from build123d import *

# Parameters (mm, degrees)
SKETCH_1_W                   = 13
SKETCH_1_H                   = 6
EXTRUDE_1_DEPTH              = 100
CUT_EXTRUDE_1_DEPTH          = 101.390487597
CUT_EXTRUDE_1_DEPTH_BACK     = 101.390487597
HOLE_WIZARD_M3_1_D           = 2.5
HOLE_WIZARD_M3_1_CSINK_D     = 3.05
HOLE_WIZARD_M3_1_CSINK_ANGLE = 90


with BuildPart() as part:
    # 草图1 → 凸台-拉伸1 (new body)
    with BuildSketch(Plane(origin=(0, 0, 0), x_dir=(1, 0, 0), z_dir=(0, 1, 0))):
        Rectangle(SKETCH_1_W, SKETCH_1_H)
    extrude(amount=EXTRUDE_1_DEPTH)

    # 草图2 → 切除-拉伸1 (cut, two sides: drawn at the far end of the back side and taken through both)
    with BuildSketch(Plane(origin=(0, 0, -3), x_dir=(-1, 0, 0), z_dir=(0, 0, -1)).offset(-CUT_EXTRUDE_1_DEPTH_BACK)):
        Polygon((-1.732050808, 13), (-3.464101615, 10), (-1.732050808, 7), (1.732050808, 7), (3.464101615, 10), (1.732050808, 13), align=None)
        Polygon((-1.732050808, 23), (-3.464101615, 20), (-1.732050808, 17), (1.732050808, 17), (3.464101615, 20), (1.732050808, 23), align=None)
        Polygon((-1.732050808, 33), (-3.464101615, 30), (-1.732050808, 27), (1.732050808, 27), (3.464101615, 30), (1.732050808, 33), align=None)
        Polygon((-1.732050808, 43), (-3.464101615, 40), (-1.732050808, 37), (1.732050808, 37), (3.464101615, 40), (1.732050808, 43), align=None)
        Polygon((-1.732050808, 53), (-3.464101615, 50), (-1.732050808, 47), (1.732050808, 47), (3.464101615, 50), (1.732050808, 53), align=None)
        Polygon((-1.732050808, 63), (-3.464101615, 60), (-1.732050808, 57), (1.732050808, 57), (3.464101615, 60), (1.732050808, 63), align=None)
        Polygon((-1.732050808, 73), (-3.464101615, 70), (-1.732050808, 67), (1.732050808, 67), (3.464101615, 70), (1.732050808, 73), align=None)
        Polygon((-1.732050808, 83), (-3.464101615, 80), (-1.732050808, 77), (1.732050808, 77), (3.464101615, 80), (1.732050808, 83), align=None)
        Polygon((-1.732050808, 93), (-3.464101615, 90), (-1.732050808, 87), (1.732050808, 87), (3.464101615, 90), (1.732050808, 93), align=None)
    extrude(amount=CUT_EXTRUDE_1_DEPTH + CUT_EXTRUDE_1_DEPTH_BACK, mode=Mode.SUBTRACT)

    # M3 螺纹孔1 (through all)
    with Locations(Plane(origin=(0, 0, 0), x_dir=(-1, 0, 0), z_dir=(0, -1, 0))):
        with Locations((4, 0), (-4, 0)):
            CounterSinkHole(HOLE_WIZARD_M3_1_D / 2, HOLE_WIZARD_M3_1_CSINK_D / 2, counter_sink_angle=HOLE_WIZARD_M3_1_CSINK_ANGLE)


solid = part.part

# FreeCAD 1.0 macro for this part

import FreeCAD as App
import Part
import Sketcher
from FreeCAD import Vector
Q = App.Units.Quantity


def add_polygon(sketch, points):
    """Adds a closed chain of lines whose ends are joined by coincident constraints."""
    first, n = sketch.GeometryCount, len(points)
    for a, b in zip(points, points[1:] + points[:1]):
        sketch.addGeometry(Part.LineSegment(App.Vector(*a, 0), App.Vector(*b, 0)), False)
    for i in range(n):
        sketch.addConstraint(Sketcher.Constraint("Coincident", first + i, 2, first + (i + 1) % n, 1))

doc = App.newDocument("Part")
body = doc.addObject("PartDesign::Body", "Body")

# Sketch on XZ plane
sketch1 = body.newObject("Sketcher::SketchObject", "Sketch")
sketch1.AttachmentSupport = (doc.getObject("XZ_Plane"), [""])
sketch1.MapMode = "FlatFace"
add_polygon(sketch1, [(-6.5, -3), (-6.5, 3), (6.5, 3), (6.5, -3)])  # lines 0-3
sketch1.addConstraint([
    Sketcher.Constraint("Vertical", 0),
    Sketcher.Constraint("Horizontal", 1),
    Sketcher.Constraint("Vertical", 2),
    Sketcher.Constraint("Horizontal", 3),
    Sketcher.Constraint("Symmetric", 0, 2, 2, 2, -1, 1),
    Sketcher.Constraint("DistanceX", 1, 1, 1, 2, Q("13 mm")),
    Sketcher.Constraint("DistanceY", 0, 1, 0, 2, Q("6 mm")),
])
pad1 = body.newObject("PartDesign::Pad", "Pad")
pad1.Profile = sketch1
pad1.Length = 100
pad1.Reversed = True

# Sketch on XY plane
sketch2 = body.newObject("Sketcher::SketchObject", "Sketch001")
sketch2.AttachmentSupport = (doc.getObject("XY_Plane"), [""])
sketch2.MapMode = "FlatFace"
sketch2.AttachmentOffset = App.Placement(Vector(0, 0, -3), App.Rotation())
add_polygon(sketch2, [(1.732051, 13), (3.464102, 10), (1.732051, 7), (-1.732051, 7), (-3.464102, 10), (-1.732051, 13)])  # lines 0-5
add_polygon(sketch2, [(1.732051, 23), (3.464102, 20), (1.732051, 17), (-1.732051, 17), (-3.464102, 20), (-1.732051, 23)])  # lines 6-11
add_polygon(sketch2, [(1.732051, 33), (3.464102, 30), (1.732051, 27), (-1.732051, 27), (-3.464102, 30), (-1.732051, 33)])  # lines 12-17
add_polygon(sketch2, [(1.732051, 43), (3.464102, 40), (1.732051, 37), (-1.732051, 37), (-3.464102, 40), (-1.732051, 43)])  # lines 18-23
add_polygon(sketch2, [(1.732051, 53), (3.464102, 50), (1.732051, 47), (-1.732051, 47), (-3.464102, 50), (-1.732051, 53)])  # lines 24-29
add_polygon(sketch2, [(1.732051, 63), (3.464102, 60), (1.732051, 57), (-1.732051, 57), (-3.464102, 60), (-1.732051, 63)])  # lines 30-35
add_polygon(sketch2, [(1.732051, 73), (3.464102, 70), (1.732051, 67), (-1.732051, 67), (-3.464102, 70), (-1.732051, 73)])  # lines 36-41
add_polygon(sketch2, [(1.732051, 83), (3.464102, 80), (1.732051, 77), (-1.732051, 77), (-3.464102, 80), (-1.732051, 83)])  # lines 42-47
add_polygon(sketch2, [(1.732051, 93), (3.464102, 90), (1.732051, 87), (-1.732051, 87), (-3.464102, 90), (-1.732051, 93)])  # lines 48-53
sketch2.addConstraint([
    Sketcher.Constraint("Horizontal", 2),
    Sketcher.Constraint("Horizontal", 5),
    Sketcher.Constraint("Horizontal", 8),
    Sketcher.Constraint("Horizontal", 11),
    Sketcher.Constraint("Horizontal", 14),
    Sketcher.Constraint("Horizontal", 17),
    Sketcher.Constraint("Horizontal", 20),
    Sketcher.Constraint("Horizontal", 23),
    Sketcher.Constraint("Horizontal", 26),
    Sketcher.Constraint("Horizontal", 29),
    Sketcher.Constraint("Horizontal", 32),
    Sketcher.Constraint("Horizontal", 35),
    Sketcher.Constraint("Horizontal", 38),
    Sketcher.Constraint("Horizontal", 41),
    Sketcher.Constraint("Horizontal", 44),
    Sketcher.Constraint("Horizontal", 47),
    Sketcher.Constraint("Horizontal", 50),
    Sketcher.Constraint("Horizontal", 53),
    Sketcher.Constraint("Symmetric", 0, 2, 3, 2, -2),
    Sketcher.Constraint("Symmetric", 6, 2, 9, 2, -2),
    Sketcher.Constraint("Symmetric", 12, 2, 15, 2, -2),
    Sketcher.Constraint("Symmetric", 18, 2, 21, 2, -2),
    Sketcher.Constraint("Symmetric", 24, 2, 27, 2, -2),
    Sketcher.Constraint("Symmetric", 30, 2, 33, 2, -2),
    Sketcher.Constraint("Symmetric", 36, 2, 39, 2, -2),
    Sketcher.Constraint("Symmetric", 42, 2, 45, 2, -2),
    Sketcher.Constraint("Symmetric", 48, 2, 51, 2, -2),
    Sketcher.Constraint("Parallel", 0, 3),
    Sketcher.Constraint("Parallel", 1, 4),
    Sketcher.Constraint("Parallel", 3, 6),
    Sketcher.Constraint("Parallel", 4, 7),
    Sketcher.Constraint("Parallel", 6, 9),
    Sketcher.Constraint("Parallel", 7, 10),
    Sketcher.Constraint("Parallel", 9, 12),
    Sketcher.Constraint("Parallel", 10, 13),
    Sketcher.Constraint("Parallel", 12, 15),
    Sketcher.Constraint("Parallel", 13, 16),
    Sketcher.Constraint("Parallel", 15, 18),
    Sketcher.Constraint("Parallel", 16, 19),
    Sketcher.Constraint("Parallel", 18, 21),
    Sketcher.Constraint("Parallel", 19, 22),
    Sketcher.Constraint("Parallel", 21, 24),
    Sketcher.Constraint("Parallel", 22, 25),
    Sketcher.Constraint("Parallel", 24, 27),
    Sketcher.Constraint("Parallel", 25, 28),
    Sketcher.Constraint("Parallel", 27, 30),
    Sketcher.Constraint("Parallel", 28, 31),
    Sketcher.Constraint("Parallel", 30, 33),
    Sketcher.Constraint("Parallel", 31, 34),
    Sketcher.Constraint("Parallel", 33, 36),
    Sketcher.Constraint("Parallel", 34, 37),
    Sketcher.Constraint("Parallel", 36, 39),
    Sketcher.Constraint("Parallel", 37, 40),
    Sketcher.Constraint("Parallel", 39, 42),
    Sketcher.Constraint("Parallel", 40, 43),
    Sketcher.Constraint("Parallel", 42, 45),
    Sketcher.Constraint("Parallel", 43, 46),
    Sketcher.Constraint("Parallel", 45, 48),
    Sketcher.Constraint("Parallel", 46, 49),
    Sketcher.Constraint("Parallel", 48, 51),
    Sketcher.Constraint("Parallel", 49, 52),
    Sketcher.Constraint("Vertical", 2, 2, 4, 2),
    Sketcher.Constraint("Vertical", 1, 2, 5, 2),
    Sketcher.Constraint("Vertical", 0, 2, 6, 2),
    Sketcher.Constraint("Vertical", 5, 2, 7, 2),
    Sketcher.Constraint("Vertical", 8, 2, 10, 2),
    Sketcher.Constraint("Vertical", 6, 2, 12, 2),
    Sketcher.Constraint("Vertical", 11, 2, 13, 2),
    Sketcher.Constraint("Vertical", 14, 2, 16, 2),
    Sketcher.Constraint("Vertical", 12, 2, 18, 2),
    Sketcher.Constraint("Vertical", 17, 2, 19, 2),
    Sketcher.Constraint("Vertical", 20, 2, 22, 2),
    Sketcher.Constraint("Vertical", 18, 2, 24, 2),
    Sketcher.Constraint("Vertical", 23, 2, 25, 2),
    Sketcher.Constraint("Vertical", 26, 2, 28, 2),
    Sketcher.Constraint("Vertical", 24, 2, 30, 2),
    Sketcher.Constraint("Vertical", 29, 2, 31, 2),
    Sketcher.Constraint("Vertical", 32, 2, 34, 2),
    Sketcher.Constraint("Vertical", 30, 2, 36, 2),
    Sketcher.Constraint("Vertical", 35, 2, 37, 2),
    Sketcher.Constraint("Vertical", 38, 2, 40, 2),
    Sketcher.Constraint("Vertical", 36, 2, 42, 2),
    Sketcher.Constraint("Vertical", 41, 2, 43, 2),
    Sketcher.Constraint("Vertical", 44, 2, 46, 2),
    Sketcher.Constraint("Vertical", 42, 2, 48, 2),
    Sketcher.Constraint("Vertical", 47, 2, 49, 2),
    Sketcher.Constraint("Vertical", 50, 2, 52, 2),
    Sketcher.Constraint("Angle", 0, Q("-60 deg")),
    Sketcher.Constraint("DistanceY", -1, 1, 0, 2, Q("10 mm")),
    Sketcher.Constraint("DistanceY", -1, 1, 1, 2, Q("7 mm")),
    Sketcher.Constraint("DistanceY", -1, 1, 6, 2, Q("20 mm")),
    Sketcher.Constraint("DistanceY", -1, 1, 12, 2, Q("30 mm")),
    Sketcher.Constraint("DistanceY", -1, 1, 18, 2, Q("40 mm")),
    Sketcher.Constraint("DistanceY", -1, 1, 24, 2, Q("50 mm")),
    Sketcher.Constraint("DistanceY", -1, 1, 30, 2, Q("60 mm")),
    Sketcher.Constraint("DistanceY", -1, 1, 36, 2, Q("70 mm")),
    Sketcher.Constraint("DistanceY", -1, 1, 42, 2, Q("80 mm")),
    Sketcher.Constraint("DistanceY", -1, 1, 48, 2, Q("90 mm")),
    Sketcher.Constraint("DistanceX", 2, 2, 2, 1, Q("3.464102 mm")),
])
pocket1 = body.newObject("PartDesign::Pocket", "Pocket")
pocket1.Profile = sketch2
pocket1.Type = "ThroughAll"
pocket1.Midplane = True

# Sketch on XZ plane
sketch3 = body.newObject("Sketcher::SketchObject", "Sketch002")
sketch3.AttachmentSupport = (doc.getObject("XZ_Plane"), [""])
sketch3.MapMode = "FlatFace"
sketch3.addGeometry([
    Part.Circle(Vector(-4, 0, 0), Vector(0, 0, 1), 1.25),
    Part.Circle(Vector(4, 0, 0), Vector(0, 0, 1), 1.25),
], False)
sketch3.addConstraint([
    Sketcher.Constraint("Equal", 0, 1),
    Sketcher.Constraint("Symmetric", 0, 3, 1, 3, -1, 1),
    Sketcher.Constraint("PointOnObject", 0, 3, -1),
    Sketcher.Constraint("Diameter", 0, Q("2.5 mm")),
    Sketcher.Constraint("DistanceX", 0, 3, -1, 1, Q("4 mm")),
])
doc.recompute()
hole = body.newObject("PartDesign::Hole", "Hole")
hole.Profile = sketch3
hole.ThreadType = "None"
hole.Diameter = 2.5
hole.DepthType = "ThroughAll"
hole.HoleCutType = "Countersink"
hole.HoleCutDiameter = 3.05
hole.HoleCutCountersinkAngle = 90

doc.recompute()
